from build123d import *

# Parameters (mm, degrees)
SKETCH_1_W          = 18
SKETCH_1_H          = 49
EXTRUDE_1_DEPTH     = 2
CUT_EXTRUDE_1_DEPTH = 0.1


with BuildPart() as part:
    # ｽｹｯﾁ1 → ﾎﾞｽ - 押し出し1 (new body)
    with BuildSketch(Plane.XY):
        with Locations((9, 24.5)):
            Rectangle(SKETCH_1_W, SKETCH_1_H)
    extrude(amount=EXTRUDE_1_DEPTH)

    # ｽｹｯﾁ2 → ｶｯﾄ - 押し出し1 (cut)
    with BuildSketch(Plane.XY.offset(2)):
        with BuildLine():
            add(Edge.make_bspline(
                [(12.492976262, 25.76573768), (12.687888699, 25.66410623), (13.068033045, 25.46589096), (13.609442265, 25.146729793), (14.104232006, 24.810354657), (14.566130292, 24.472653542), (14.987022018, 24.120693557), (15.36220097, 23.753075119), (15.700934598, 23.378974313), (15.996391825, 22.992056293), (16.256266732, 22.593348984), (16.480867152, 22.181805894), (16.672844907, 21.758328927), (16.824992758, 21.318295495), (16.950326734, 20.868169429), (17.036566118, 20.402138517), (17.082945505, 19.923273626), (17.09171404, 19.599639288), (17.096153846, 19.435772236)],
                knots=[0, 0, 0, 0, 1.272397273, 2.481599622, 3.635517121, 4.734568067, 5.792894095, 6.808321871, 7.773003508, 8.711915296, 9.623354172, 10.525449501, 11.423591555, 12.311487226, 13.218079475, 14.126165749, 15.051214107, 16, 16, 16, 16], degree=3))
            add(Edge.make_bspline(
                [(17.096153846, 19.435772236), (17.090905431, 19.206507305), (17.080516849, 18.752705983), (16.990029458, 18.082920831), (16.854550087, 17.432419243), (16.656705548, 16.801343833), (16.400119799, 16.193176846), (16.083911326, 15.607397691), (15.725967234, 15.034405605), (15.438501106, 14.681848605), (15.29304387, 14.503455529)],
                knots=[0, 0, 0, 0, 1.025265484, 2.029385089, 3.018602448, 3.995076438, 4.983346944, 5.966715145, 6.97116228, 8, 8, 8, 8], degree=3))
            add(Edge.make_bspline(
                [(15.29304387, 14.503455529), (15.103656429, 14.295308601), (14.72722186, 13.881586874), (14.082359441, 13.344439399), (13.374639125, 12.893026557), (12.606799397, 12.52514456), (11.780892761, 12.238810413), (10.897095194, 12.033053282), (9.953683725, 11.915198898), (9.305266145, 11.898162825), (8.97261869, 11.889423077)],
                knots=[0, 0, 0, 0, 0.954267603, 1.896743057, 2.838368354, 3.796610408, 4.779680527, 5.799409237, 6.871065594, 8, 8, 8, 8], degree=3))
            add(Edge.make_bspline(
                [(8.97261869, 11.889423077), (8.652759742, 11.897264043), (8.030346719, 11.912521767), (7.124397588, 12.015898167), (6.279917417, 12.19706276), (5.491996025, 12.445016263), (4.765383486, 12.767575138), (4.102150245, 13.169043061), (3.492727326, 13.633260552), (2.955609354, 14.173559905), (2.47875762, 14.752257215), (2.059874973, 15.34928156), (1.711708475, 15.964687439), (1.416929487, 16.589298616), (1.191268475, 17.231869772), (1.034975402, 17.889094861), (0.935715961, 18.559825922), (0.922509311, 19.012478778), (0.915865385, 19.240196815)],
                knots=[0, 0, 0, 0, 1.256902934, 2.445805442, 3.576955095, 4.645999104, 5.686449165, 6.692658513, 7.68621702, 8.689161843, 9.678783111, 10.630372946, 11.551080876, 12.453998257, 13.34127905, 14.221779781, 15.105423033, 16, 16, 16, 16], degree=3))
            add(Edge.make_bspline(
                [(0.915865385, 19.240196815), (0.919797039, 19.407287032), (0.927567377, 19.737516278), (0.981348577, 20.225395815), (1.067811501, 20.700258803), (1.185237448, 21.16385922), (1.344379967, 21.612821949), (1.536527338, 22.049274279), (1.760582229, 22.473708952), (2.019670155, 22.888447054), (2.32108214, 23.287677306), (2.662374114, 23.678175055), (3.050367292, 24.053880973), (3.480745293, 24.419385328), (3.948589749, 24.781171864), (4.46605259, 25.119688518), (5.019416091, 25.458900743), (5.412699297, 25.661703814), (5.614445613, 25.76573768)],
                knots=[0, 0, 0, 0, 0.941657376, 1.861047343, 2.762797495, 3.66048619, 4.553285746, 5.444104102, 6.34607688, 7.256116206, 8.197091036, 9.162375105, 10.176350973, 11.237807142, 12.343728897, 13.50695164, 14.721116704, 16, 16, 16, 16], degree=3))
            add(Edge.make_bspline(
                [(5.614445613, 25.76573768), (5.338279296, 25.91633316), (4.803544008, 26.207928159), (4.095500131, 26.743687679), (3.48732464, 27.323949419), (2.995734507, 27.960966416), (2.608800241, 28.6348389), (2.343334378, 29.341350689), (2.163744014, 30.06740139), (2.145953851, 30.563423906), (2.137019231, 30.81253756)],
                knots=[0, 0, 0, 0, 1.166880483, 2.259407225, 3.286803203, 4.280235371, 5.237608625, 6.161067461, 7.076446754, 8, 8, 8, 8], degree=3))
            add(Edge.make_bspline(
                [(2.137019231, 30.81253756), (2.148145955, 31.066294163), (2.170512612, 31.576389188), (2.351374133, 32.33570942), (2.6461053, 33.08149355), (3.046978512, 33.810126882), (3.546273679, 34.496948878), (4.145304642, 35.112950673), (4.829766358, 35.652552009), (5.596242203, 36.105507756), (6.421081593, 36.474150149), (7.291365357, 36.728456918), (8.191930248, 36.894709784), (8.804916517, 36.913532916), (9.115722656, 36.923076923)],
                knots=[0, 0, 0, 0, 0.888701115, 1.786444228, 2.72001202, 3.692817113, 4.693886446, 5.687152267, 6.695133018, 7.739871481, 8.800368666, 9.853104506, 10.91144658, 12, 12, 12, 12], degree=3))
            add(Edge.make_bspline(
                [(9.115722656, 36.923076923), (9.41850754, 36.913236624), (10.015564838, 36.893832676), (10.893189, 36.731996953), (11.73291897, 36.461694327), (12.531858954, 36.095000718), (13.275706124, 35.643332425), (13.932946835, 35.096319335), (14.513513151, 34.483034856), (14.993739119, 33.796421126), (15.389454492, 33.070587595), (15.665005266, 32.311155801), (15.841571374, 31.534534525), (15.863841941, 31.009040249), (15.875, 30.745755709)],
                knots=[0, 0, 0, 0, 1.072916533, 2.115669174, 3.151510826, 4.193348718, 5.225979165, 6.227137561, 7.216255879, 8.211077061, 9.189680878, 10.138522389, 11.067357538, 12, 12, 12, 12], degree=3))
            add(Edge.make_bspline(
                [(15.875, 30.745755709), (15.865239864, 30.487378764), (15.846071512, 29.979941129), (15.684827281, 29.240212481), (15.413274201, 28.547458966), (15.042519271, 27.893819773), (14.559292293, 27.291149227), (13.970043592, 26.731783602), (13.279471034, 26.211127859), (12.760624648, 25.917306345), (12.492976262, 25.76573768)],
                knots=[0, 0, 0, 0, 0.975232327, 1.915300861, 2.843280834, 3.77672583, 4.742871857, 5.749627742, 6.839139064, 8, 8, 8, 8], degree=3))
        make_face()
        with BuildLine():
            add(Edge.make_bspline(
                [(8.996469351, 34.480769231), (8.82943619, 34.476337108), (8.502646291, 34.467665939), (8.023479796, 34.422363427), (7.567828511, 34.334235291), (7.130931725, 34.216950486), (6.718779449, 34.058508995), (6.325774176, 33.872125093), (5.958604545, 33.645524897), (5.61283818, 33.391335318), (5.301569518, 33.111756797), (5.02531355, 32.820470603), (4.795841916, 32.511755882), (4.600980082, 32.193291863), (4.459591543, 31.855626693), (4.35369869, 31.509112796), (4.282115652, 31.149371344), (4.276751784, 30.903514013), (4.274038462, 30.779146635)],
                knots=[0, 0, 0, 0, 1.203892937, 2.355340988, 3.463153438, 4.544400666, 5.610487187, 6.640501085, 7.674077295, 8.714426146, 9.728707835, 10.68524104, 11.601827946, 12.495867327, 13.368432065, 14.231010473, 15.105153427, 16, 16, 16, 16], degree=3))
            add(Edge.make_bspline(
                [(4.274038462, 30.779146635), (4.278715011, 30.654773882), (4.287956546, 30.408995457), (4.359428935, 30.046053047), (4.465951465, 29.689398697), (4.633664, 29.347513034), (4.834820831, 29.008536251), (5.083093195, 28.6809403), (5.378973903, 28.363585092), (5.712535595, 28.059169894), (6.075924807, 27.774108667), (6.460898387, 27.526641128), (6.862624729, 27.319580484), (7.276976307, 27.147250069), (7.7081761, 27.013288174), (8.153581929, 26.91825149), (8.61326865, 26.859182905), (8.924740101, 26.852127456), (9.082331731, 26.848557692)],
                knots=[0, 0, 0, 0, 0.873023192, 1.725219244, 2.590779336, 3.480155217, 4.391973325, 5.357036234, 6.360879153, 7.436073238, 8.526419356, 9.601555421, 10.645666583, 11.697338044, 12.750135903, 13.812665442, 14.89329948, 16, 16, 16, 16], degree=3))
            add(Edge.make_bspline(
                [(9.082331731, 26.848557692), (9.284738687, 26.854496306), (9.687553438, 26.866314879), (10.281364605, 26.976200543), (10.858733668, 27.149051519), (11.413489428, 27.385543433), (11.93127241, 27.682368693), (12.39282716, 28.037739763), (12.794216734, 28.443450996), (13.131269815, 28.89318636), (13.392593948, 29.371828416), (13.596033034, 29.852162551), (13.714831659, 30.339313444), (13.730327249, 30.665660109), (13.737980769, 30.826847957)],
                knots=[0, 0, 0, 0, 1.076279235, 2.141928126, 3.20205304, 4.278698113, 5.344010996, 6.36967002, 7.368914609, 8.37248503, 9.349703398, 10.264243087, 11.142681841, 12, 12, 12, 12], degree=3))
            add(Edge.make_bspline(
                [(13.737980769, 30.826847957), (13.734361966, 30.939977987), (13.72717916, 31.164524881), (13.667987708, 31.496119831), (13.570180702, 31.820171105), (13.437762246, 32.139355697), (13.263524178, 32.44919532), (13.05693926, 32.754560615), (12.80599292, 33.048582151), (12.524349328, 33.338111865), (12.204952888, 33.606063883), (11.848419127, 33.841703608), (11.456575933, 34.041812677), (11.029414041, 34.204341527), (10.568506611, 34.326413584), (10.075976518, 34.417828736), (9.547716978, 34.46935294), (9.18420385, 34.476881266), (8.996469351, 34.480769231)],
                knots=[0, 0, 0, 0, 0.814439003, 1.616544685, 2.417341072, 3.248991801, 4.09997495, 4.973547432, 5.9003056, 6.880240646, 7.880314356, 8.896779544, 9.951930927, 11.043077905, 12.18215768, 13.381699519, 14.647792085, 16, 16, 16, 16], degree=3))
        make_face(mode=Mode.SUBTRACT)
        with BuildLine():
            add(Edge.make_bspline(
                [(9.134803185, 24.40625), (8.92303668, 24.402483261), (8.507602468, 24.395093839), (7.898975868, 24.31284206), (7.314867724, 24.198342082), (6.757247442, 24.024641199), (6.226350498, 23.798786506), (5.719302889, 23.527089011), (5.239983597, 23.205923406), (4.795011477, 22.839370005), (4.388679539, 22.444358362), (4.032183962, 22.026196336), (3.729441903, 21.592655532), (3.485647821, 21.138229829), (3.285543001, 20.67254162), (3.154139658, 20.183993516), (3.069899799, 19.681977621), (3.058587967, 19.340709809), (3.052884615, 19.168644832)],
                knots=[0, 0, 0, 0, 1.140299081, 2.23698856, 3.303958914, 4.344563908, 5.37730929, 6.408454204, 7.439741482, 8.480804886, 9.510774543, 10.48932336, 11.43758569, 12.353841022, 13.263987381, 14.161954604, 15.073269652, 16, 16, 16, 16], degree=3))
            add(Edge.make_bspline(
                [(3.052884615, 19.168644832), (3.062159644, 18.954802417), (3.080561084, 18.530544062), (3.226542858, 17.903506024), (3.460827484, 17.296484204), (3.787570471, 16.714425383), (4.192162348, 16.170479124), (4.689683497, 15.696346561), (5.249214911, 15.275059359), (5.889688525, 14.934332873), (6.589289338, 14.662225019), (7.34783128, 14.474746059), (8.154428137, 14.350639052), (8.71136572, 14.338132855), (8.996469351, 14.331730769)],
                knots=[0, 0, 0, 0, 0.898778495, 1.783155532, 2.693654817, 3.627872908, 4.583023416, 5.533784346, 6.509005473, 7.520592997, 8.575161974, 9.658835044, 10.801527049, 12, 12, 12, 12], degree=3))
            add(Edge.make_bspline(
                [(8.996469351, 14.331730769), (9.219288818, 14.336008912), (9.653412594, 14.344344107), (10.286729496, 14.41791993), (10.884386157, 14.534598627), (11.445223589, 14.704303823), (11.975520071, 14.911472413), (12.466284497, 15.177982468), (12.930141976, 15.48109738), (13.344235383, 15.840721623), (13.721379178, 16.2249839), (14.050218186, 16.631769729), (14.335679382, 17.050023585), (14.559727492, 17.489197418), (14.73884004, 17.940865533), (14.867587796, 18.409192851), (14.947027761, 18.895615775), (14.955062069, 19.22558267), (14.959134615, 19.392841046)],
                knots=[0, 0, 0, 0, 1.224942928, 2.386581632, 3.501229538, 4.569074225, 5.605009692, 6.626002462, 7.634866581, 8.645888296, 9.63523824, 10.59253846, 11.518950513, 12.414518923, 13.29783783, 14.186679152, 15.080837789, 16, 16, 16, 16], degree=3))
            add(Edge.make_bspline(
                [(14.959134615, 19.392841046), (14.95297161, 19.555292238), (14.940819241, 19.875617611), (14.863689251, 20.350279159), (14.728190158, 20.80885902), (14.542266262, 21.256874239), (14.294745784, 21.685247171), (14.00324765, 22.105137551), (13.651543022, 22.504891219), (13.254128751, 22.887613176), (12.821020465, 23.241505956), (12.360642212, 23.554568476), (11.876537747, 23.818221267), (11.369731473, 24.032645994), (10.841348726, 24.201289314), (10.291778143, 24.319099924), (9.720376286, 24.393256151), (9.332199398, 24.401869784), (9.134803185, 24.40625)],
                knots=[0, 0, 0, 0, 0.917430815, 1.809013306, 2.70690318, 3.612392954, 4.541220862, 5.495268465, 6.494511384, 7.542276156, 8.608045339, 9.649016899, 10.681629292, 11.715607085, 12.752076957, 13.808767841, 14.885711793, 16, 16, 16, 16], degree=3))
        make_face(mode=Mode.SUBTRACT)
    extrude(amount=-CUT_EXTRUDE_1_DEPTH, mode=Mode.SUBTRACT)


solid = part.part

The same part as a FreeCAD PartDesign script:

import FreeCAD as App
import Part
import Sketcher

V = App.Vector

doc = App.newDocument("Part")
body = doc.addObject("PartDesign::Body", "Body")

# Sketch on XY plane
sketch1 = body.newObject("Sketcher::SketchObject", "Sketch")
sketch1.AttachmentSupport = (doc.getObject("XY_Plane"), [""])
sketch1.MapMode = "FlatFace"
sketch1.addGeometry(Part.LineSegment(V(0, 49, 0), V(0, 0, 0)), False)
sketch1.addGeometry(Part.LineSegment(V(0, 0, 0), V(18, 0, 0)), False)
sketch1.addGeometry(Part.LineSegment(V(18, 0, 0), V(18, 49, 0)), False)
sketch1.addGeometry(Part.LineSegment(V(18, 49, 0), V(0, 49, 0)), False)
sketch1.addConstraint(Sketcher.Constraint("Coincident", 0, 2, 1, 1))
sketch1.addConstraint(Sketcher.Constraint("Coincident", 1, 2, 2, 1))
sketch1.addConstraint(Sketcher.Constraint("Coincident", 2, 2, 3, 1))
sketch1.addConstraint(Sketcher.Constraint("Coincident", 3, 2, 0, 1))
sketch1.addConstraint(Sketcher.Constraint("Vertical", 0))
sketch1.addConstraint(Sketcher.Constraint("Horizontal", 1))
sketch1.addConstraint(Sketcher.Constraint("Vertical", 2))
sketch1.addConstraint(Sketcher.Constraint("Horizontal", 3))
sketch1.addConstraint(Sketcher.Constraint("Coincident", 0, 2, -1, 1))
sketch1.addConstraint(Sketcher.Constraint("DistanceX", 1, 1, 1, 2, 18.0))
sketch1.addConstraint(Sketcher.Constraint("DistanceY", 0, 2, 0, 1, 49.0))
pad1 = body.newObject("PartDesign::Pad", "Pad")
pad1.Profile = sketch1
pad1.Length = 2

# Sketch on XY plane
sketch2 = body.newObject("Sketcher::SketchObject", "Sketch001")
sketch2.AttachmentSupport = (doc.getObject("XY_Plane"), [""])
sketch2.MapMode = "FlatFace"
sketch2.AttachmentOffset = App.Placement(V(0, 0, 2), App.Rotation())
sketch2.addGeometry(Part.BSplineCurve([V(12.492976, 25.765738, 0), V(12.687889, 25.664106, 0), V(13.068033, 25.465891, 0), V(13.609442, 25.14673, 0), V(14.104232, 24.810355, 0), V(14.56613, 24.472654, 0), V(14.987022, 24.120694, 0), V(15.362201, 23.753075, 0), V(15.700935, 23.378974, 0), V(15.996392, 22.992056, 0), V(16.256267, 22.593349, 0), V(16.480867, 22.181806, 0), V(16.672845, 21.758329, 0), V(16.824993, 21.318295, 0), V(16.950327, 20.868169, 0), V(17.036566, 20.402139, 0), V(17.082946, 19.923274, 0), V(17.091714, 19.599639, 0), V(17.096154, 19.435772, 0)], [4, 1, 1, 1, 1, 1, 1, 1, 1, 1, 1, 1, 1, 1, 1, 1, 4], [0, 1.272397273, 2.481599622, 3.635517121, 4.734568067, 5.792894095, 6.808321871, 7.773003508, 8.711915296, 9.623354172, 10.525449501, 11.423591555, 12.311487226, 13.218079475, 14.126165749, 15.051214107, 16], False, 3, [1, 1, 1, 1, 1, 1, 1, 1, 1, 1, 1, 1, 1, 1, 1, 1, 1, 1, 1], False), False)
sketch2.addGeometry(Part.BSplineCurve([V(15.875, 30.745756, 0), V(15.86524, 30.487379, 0), V(15.846072, 29.979941, 0), V(15.684827, 29.240212, 0), V(15.413274, 28.547459, 0), V(15.042519, 27.89382, 0), V(14.559292, 27.291149, 0), V(13.970044, 26.731784, 0), V(13.279471, 26.211128, 0), V(12.760625, 25.917306, 0), V(12.492976, 25.765738, 0)], [4, 1, 1, 1, 1, 1, 1, 1, 4], [0, 0.975232327, 1.915300861, 2.843280834, 3.77672583, 4.742871857, 5.749627742, 6.839139064, 8], False, 3, [1, 1, 1, 1, 1, 1, 1, 1, 1, 1, 1], False), False)
sketch2.addGeometry(Part.BSplineCurve([V(9.115723, 36.923077, 0), V(9.418508, 36.913237, 0), V(10.015565, 36.893833, 0), V(10.893189, 36.731997, 0), V(11.732919, 36.461694, 0), V(12.531859, 36.095001, 0), V(13.275706, 35.643332, 0), V(13.932947, 35.096319, 0), V(14.513513, 34.483035, 0), V(14.993739, 33.796421, 0), V(15.389454, 33.070588, 0), V(15.665005, 32.311156, 0), V(15.841571, 31.534535, 0), V(15.863842, 31.00904, 0), V(15.875, 30.745756, 0)], [4, 1, 1, 1, 1, 1, 1, 1, 1, 1, 1, 1, 4], [0, 1.072916533, 2.115669174, 3.151510826, 4.193348718, 5.225979165, 6.227137561, 7.216255879, 8.211077061, 9.189680878, 10.138522389, 11.067357538, 12], False, 3, [1, 1, 1, 1, 1, 1, 1, 1, 1, 1, 1, 1, 1, 1, 1], False), False)
sketch2.addGeometry(Part.BSplineCurve([V(2.137019, 30.812538, 0), V(2.148146, 31.066294, 0), V(2.170513, 31.576389, 0), V(2.351374, 32.335709, 0), V(2.646105, 33.081494, 0), V(3.046979, 33.810127, 0), V(3.546274, 34.496949, 0), V(4.145305, 35.112951, 0), V(4.829766, 35.652552, 0), V(5.596242, 36.105508, 0), V(6.421082, 36.47415, 0), V(7.291365, 36.728457, 0), V(8.19193, 36.89471, 0), V(8.804917, 36.913533, 0), V(9.115723, 36.923077, 0)], [4, 1, 1, 1, 1, 1, 1, 1, 1, 1, 1, 1, 4], [0, 0.888701115, 1.786444228, 2.72001202, 3.692817113, 4.693886446, 5.687152267, 6.695133018, 7.739871481, 8.800368666, 9.853104506, 10.91144658, 12], False, 3, [1, 1, 1, 1, 1, 1, 1, 1, 1, 1, 1, 1, 1, 1, 1], False), False)
sketch2.addGeometry(Part.BSplineCurve([V(5.614446, 25.765738, 0), V(5.338279, 25.916333, 0), V(4.803544, 26.207928, 0), V(4.0955, 26.743688, 0), V(3.487325, 27.323949, 0), V(2.995735, 27.960966, 0), V(2.6088, 28.634839, 0), V(2.343334, 29.341351, 0), V(2.163744, 30.067401, 0), V(2.145954, 30.563424, 0), V(2.137019, 30.812538, 0)], [4, 1, 1, 1, 1, 1, 1, 1, 4], [0, 1.166880483, 2.259407225, 3.286803203, 4.280235371, 5.237608625, 6.161067461, 7.076446754, 8], False, 3, [1, 1, 1, 1, 1, 1, 1, 1, 1, 1, 1], False), False)
sketch2.addGeometry(Part.BSplineCurve([V(0.915865, 19.240197, 0), V(0.919797, 19.407287, 0), V(0.927567, 19.737516, 0), V(0.981349, 20.225396, 0), V(1.067812, 20.700259, 0), V(1.185237, 21.163859, 0), V(1.34438, 21.612822, 0), V(1.536527, 22.049274, 0), V(1.760582, 22.473709, 0), V(2.01967, 22.888447, 0), V(2.321082, 23.287677, 0), V(2.662374, 23.678175, 0), V(3.050367, 24.053881, 0), V(3.480745, 24.419385, 0), V(3.94859, 24.781172, 0), V(4.466053, 25.119689, 0), V(5.019416, 25.458901, 0), V(5.412699, 25.661704, 0), V(5.614446, 25.765738, 0)], [4, 1, 1, 1, 1, 1, 1, 1, 1, 1, 1, 1, 1, 1, 1, 1, 4], [0, 0.941657376, 1.861047343, 2.762797495, 3.66048619, 4.553285746, 5.444104102, 6.34607688, 7.256116206, 8.197091036, 9.162375105, 10.176350973, 11.237807142, 12.343728897, 13.50695164, 14.721116704, 16], False, 3, [1, 1, 1, 1, 1, 1, 1, 1, 1, 1, 1, 1, 1, 1, 1, 1, 1, 1, 1], False), False)
sketch2.addGeometry(Part.BSplineCurve([V(8.972619, 11.889423, 0), V(8.65276, 11.897264, 0), V(8.030347, 11.912522, 0), V(7.124398, 12.015898, 0), V(6.279917, 12.197063, 0), V(5.491996, 12.445016, 0), V(4.765383, 12.767575, 0), V(4.10215, 13.169043, 0), V(3.492727, 13.633261, 0), V(2.955609, 14.17356, 0), V(2.478758, 14.752257, 0), V(2.059875, 15.349282, 0), V(1.711708, 15.964687, 0), V(1.416929, 16.589299, 0), V(1.191268, 17.23187, 0), V(1.034975, 17.889095, 0), V(0.935716, 18.559826, 0), V(0.922509, 19.012479, 0), V(0.915865, 19.240197, 0)], [4, 1, 1, 1, 1, 1, 1, 1, 1, 1, 1, 1, 1, 1, 1, 1, 4], [0, 1.256902934, 2.445805442, 3.576955095, 4.645999104, 5.686449165, 6.692658513, 7.68621702, 8.689161843, 9.678783111, 10.630372946, 11.551080876, 12.453998257, 13.34127905, 14.221779781, 15.105423033, 16], False, 3, [1, 1, 1, 1, 1, 1, 1, 1, 1, 1, 1, 1, 1, 1, 1, 1, 1, 1, 1], False), False)
sketch2.addGeometry(Part.BSplineCurve([V(15.293044, 14.503456, 0), V(15.103656, 14.295309, 0), V(14.727222, 13.881587, 0), V(14.082359, 13.344439, 0), V(13.374639, 12.893027, 0), V(12.606799, 12.525145, 0), V(11.780893, 12.23881, 0), V(10.897095, 12.033053, 0), V(9.953684, 11.915199, 0), V(9.305266, 11.898163, 0), V(8.972619, 11.889423, 0)], [4, 1, 1, 1, 1, 1, 1, 1, 4], [0, 0.954267603, 1.896743057, 2.838368354, 3.796610408, 4.779680527, 5.799409237, 6.871065594, 8], False, 3, [1, 1, 1, 1, 1, 1, 1, 1, 1, 1, 1], False), False)
sketch2.addGeometry(Part.BSplineCurve([V(17.096154, 19.435772, 0), V(17.090905, 19.206507, 0), V(17.080517, 18.752706, 0), V(16.990029, 18.082921, 0), V(16.85455, 17.432419, 0), V(16.656706, 16.801344, 0), V(16.40012, 16.193177, 0), V(16.083911, 15.607398, 0), V(15.725967, 15.034406, 0), V(15.438501, 14.681849, 0), V(15.293044, 14.503456, 0)], [4, 1, 1, 1, 1, 1, 1, 1, 4], [0, 1.025265484, 2.029385089, 3.018602448, 3.995076438, 4.983346944, 5.966715145, 6.97116228, 8], False, 3, [1, 1, 1, 1, 1, 1, 1, 1, 1, 1, 1], False), False)
sketch2.addGeometry(Part.BSplineCurve([V(14.959135, 19.392841, 0), V(14.952972, 19.555292, 0), V(14.940819, 19.875618, 0), V(14.863689, 20.350279, 0), V(14.72819, 20.808859, 0), V(14.542266, 21.256874, 0), V(14.294746, 21.685247, 0), V(14.003248, 22.105138, 0), V(13.651543, 22.504891, 0), V(13.254129, 22.887613, 0), V(12.82102, 23.241506, 0), V(12.360642, 23.554568, 0), V(11.876538, 23.818221, 0), V(11.369731, 24.032646, 0), V(10.841349, 24.201289, 0), V(10.291778, 24.3191, 0), V(9.720376, 24.393256, 0), V(9.332199, 24.40187, 0), V(9.134803, 24.40625, 0)], [4, 1, 1, 1, 1, 1, 1, 1, 1, 1, 1, 1, 1, 1, 1, 1, 4], [0, 0.917430815, 1.809013306, 2.70690318, 3.612392954, 4.541220862, 5.495268465, 6.494511384, 7.542276156, 8.608045339, 9.649016899, 10.681629292, 11.715607085, 12.752076957, 13.808767841, 14.885711793, 16], False, 3, [1, 1, 1, 1, 1, 1, 1, 1, 1, 1, 1, 1, 1, 1, 1, 1, 1, 1, 1], False), False)
sketch2.addGeometry(Part.BSplineCurve([V(8.996469, 14.331731, 0), V(9.219289, 14.336009, 0), V(9.653413, 14.344344, 0), V(10.286729, 14.41792, 0), V(10.884386, 14.534599, 0), V(11.445224, 14.704304, 0), V(11.97552, 14.911472, 0), V(12.466284, 15.177982, 0), V(12.930142, 15.481097, 0), V(13.344235, 15.840722, 0), V(13.721379, 16.224984, 0), V(14.050218, 16.63177, 0), V(14.335679, 17.050024, 0), V(14.559727, 17.489197, 0), V(14.73884, 17.940866, 0), V(14.867588, 18.409193, 0), V(14.947028, 18.895616, 0), V(14.955062, 19.225583, 0), V(14.959135, 19.392841, 0)], [4, 1, 1, 1, 1, 1, 1, 1, 1, 1, 1, 1, 1, 1, 1, 1, 4], [0, 1.224942928, 2.386581632, 3.501229538, 4.569074225, 5.605009692, 6.626002462, 7.634866581, 8.645888296, 9.63523824, 10.59253846, 11.518950513, 12.414518923, 13.29783783, 14.186679152, 15.080837789, 16], False, 3, [1, 1, 1, 1, 1, 1, 1, 1, 1, 1, 1, 1, 1, 1, 1, 1, 1, 1, 1], False), False)
sketch2.addGeometry(Part.BSplineCurve([V(3.052885, 19.168645, 0), V(3.06216, 18.954802, 0), V(3.080561, 18.530544, 0), V(3.226543, 17.903506, 0), V(3.460827, 17.296484, 0), V(3.78757, 16.714425, 0), V(4.192162, 16.170479, 0), V(4.689683, 15.696347, 0), V(5.249215, 15.275059, 0), V(5.889689, 14.934333, 0), V(6.589289, 14.662225, 0), V(7.347831, 14.474746, 0), V(8.154428, 14.350639, 0), V(8.711366, 14.338133, 0), V(8.996469, 14.331731, 0)], [4, 1, 1, 1, 1, 1, 1, 1, 1, 1, 1, 1, 4], [0, 0.898778495, 1.783155532, 2.693654817, 3.627872908, 4.583023416, 5.533784346, 6.509005473, 7.520592997, 8.575161974, 9.658835044, 10.801527049, 12], False, 3, [1, 1, 1, 1, 1, 1, 1, 1, 1, 1, 1, 1, 1, 1, 1], False), False)
sketch2.addGeometry(Part.BSplineCurve([V(9.134803, 24.40625, 0), V(8.923037, 24.402483, 0), V(8.507602, 24.395094, 0), V(7.898976, 24.312842, 0), V(7.314868, 24.198342, 0), V(6.757247, 24.024641, 0), V(6.22635, 23.798787, 0), V(5.719303, 23.527089, 0), V(5.239984, 23.205923, 0), V(4.795011, 22.83937, 0), V(4.38868, 22.444358, 0), V(4.032184, 22.026196, 0), V(3.729442, 21.592656, 0), V(3.485648, 21.13823, 0), V(3.285543, 20.672542, 0), V(3.15414, 20.183994, 0), V(3.0699, 19.681978, 0), V(3.058588, 19.34071, 0), V(3.052885, 19.168645, 0)], [4, 1, 1, 1, 1, 1, 1, 1, 1, 1, 1, 1, 1, 1, 1, 1, 4], [0, 1.140299081, 2.23698856, 3.303958914, 4.344563908, 5.37730929, 6.408454204, 7.439741482, 8.480804886, 9.510774543, 10.48932336, 11.43758569, 12.353841022, 13.263987381, 14.161954604, 15.073269652, 16], False, 3, [1, 1, 1, 1, 1, 1, 1, 1, 1, 1, 1, 1, 1, 1, 1, 1, 1, 1, 1], False), False)
sketch2.addGeometry(Part.BSplineCurve([V(13.737981, 30.826848, 0), V(13.734362, 30.939978, 0), V(13.727179, 31.164525, 0), V(13.667988, 31.49612, 0), V(13.570181, 31.820171, 0), V(13.437762, 32.139356, 0), V(13.263524, 32.449195, 0), V(13.056939, 32.754561, 0), V(12.805993, 33.048582, 0), V(12.524349, 33.338112, 0), V(12.204953, 33.606064, 0), V(11.848419, 33.841704, 0), V(11.456576, 34.041813, 0), V(11.029414, 34.204342, 0), V(10.568507, 34.326414, 0), V(10.075977, 34.417829, 0), V(9.547717, 34.469353, 0), V(9.184204, 34.476881, 0), V(8.996469, 34.480769, 0)], [4, 1, 1, 1, 1, 1, 1, 1, 1, 1, 1, 1, 1, 1, 1, 1, 4], [0, 0.814439003, 1.616544685, 2.417341072, 3.248991801, 4.09997495, 4.973547432, 5.9003056, 6.880240646, 7.880314356, 8.896779544, 9.951930927, 11.043077905, 12.18215768, 13.381699519, 14.647792085, 16], False, 3, [1, 1, 1, 1, 1, 1, 1, 1, 1, 1, 1, 1, 1, 1, 1, 1, 1, 1, 1], False), False)
sketch2.addGeometry(Part.BSplineCurve([V(9.082332, 26.848558, 0), V(9.284739, 26.854496, 0), V(9.687553, 26.866315, 0), V(10.281365, 26.976201, 0), V(10.858734, 27.149052, 0), V(11.413489, 27.385543, 0), V(11.931272, 27.682369, 0), V(12.392827, 28.03774, 0), V(12.794217, 28.443451, 0), V(13.13127, 28.893186, 0), V(13.392594, 29.371828, 0), V(13.596033, 29.852163, 0), V(13.714832, 30.339313, 0), V(13.730327, 30.66566, 0), V(13.737981, 30.826848, 0)], [4, 1, 1, 1, 1, 1, 1, 1, 1, 1, 1, 1, 4], [0, 1.076279235, 2.141928126, 3.20205304, 4.278698113, 5.344010996, 6.36967002, 7.368914609, 8.37248503, 9.349703398, 10.264243087, 11.142681841, 12], False, 3, [1, 1, 1, 1, 1, 1, 1, 1, 1, 1, 1, 1, 1, 1, 1], False), False)
sketch2.addGeometry(Part.BSplineCurve([V(4.274038, 30.779147, 0), V(4.278715, 30.654774, 0), V(4.287957, 30.408995, 0), V(4.359429, 30.046053, 0), V(4.465951, 29.689399, 0), V(4.633664, 29.347513, 0), V(4.834821, 29.008536, 0), V(5.083093, 28.68094, 0), V(5.378974, 28.363585, 0), V(5.712536, 28.05917, 0), V(6.075925, 27.774109, 0), V(6.460898, 27.526641, 0), V(6.862625, 27.31958, 0), V(7.276976, 27.14725, 0), V(7.708176, 27.013288, 0), V(8.153582, 26.918251, 0), V(8.613269, 26.859183, 0), V(8.92474, 26.852127, 0), V(9.082332, 26.848558, 0)], [4, 1, 1, 1, 1, 1, 1, 1, 1, 1, 1, 1, 1, 1, 1, 1, 4], [0, 0.873023192, 1.725219244, 2.590779336, 3.480155217, 4.391973325, 5.357036234, 6.360879153, 7.436073238, 8.526419356, 9.601555421, 10.645666583, 11.697338044, 12.750135903, 13.812665442, 14.89329948, 16], False, 3, [1, 1, 1, 1, 1, 1, 1, 1, 1, 1, 1, 1, 1, 1, 1, 1, 1, 1, 1], False), False)
sketch2.addGeometry(Part.BSplineCurve([V(8.996469, 34.480769, 0), V(8.829436, 34.476337, 0), V(8.502646, 34.467666, 0), V(8.02348, 34.422363, 0), V(7.567829, 34.334235, 0), V(7.130932, 34.21695, 0), V(6.718779, 34.058509, 0), V(6.325774, 33.872125, 0), V(5.958605, 33.645525, 0), V(5.612838, 33.391335, 0), V(5.30157, 33.111757, 0), V(5.025314, 32.820471, 0), V(4.795842, 32.511756, 0), V(4.60098, 32.193292, 0), V(4.459592, 31.855627, 0), V(4.353699, 31.509113, 0), V(4.282116, 31.149371, 0), V(4.276752, 30.903514, 0), V(4.274038, 30.779147, 0)], [4, 1, 1, 1, 1, 1, 1, 1, 1, 1, 1, 1, 1, 1, 1, 1, 4], [0, 1.203892937, 2.355340988, 3.463153438, 4.544400666, 5.610487187, 6.640501085, 7.674077295, 8.714426146, 9.728707835, 10.68524104, 11.601827946, 12.495867327, 13.368432065, 14.231010473, 15.105153427, 16], False, 3, [1, 1, 1, 1, 1, 1, 1, 1, 1, 1, 1, 1, 1, 1, 1, 1, 1, 1, 1], False), False)
sketch2.addConstraint(Sketcher.Constraint("Block", 0))
sketch2.addConstraint(Sketcher.Constraint("Block", 1))
sketch2.addConstraint(Sketcher.Constraint("Block", 2))
sketch2.addConstraint(Sketcher.Constraint("Block", 3))
sketch2.addConstraint(Sketcher.Constraint("Block", 4))
sketch2.addConstraint(Sketcher.Constraint("Block", 5))
sketch2.addConstraint(Sketcher.Constraint("Block", 6))
sketch2.addConstraint(Sketcher.Constraint("Block", 7))
sketch2.addConstraint(Sketcher.Constraint("Block", 8))
sketch2.addConstraint(Sketcher.Constraint("Block", 9))
sketch2.addConstraint(Sketcher.Constraint("Block", 10))
sketch2.addConstraint(Sketcher.Constraint("Block", 11))
sketch2.addConstraint(Sketcher.Constraint("Block", 12))
sketch2.addConstraint(Sketcher.Constraint("Block", 13))
sketch2.addConstraint(Sketcher.Constraint("Block", 14))
sketch2.addConstraint(Sketcher.Constraint("Block", 15))
sketch2.addConstraint(Sketcher.Constraint("Block", 16))
pocket1 = body.newObject("PartDesign::Pocket", "Pocket")
pocket1.Profile = sketch2
pocket1.Length = 0.1

doc.recompute()
